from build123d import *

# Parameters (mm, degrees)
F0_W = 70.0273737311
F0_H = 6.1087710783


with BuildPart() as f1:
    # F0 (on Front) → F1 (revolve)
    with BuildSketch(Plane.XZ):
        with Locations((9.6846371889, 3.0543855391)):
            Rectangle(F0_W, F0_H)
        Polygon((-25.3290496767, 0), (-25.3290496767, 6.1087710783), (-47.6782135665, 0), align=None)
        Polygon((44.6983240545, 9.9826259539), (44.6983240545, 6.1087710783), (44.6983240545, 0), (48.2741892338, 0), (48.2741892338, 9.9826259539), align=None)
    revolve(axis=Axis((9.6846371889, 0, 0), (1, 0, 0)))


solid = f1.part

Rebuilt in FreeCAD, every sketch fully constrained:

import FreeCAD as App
import Part
import Sketcher
from FreeCAD import Vector
Q = App.Units.Quantity

doc = App.newDocument("Part")
body = doc.addObject("PartDesign::Body", "Body")

sketch1 = body.newObject("Sketcher::SketchObject", "Sketch")
sketch1.AttachmentSupport = (doc.getObject("XZ_Plane"), [""])
sketch1.MapMode = "FlatFace"
sketch1.addGeometry([
    Part.LineSegment(Vector(44.7, 6.1, 0), Vector(-25.3, 6.1, 0)),
    Part.LineSegment(Vector(-25.3, 6.1, 0), Vector(-47.7, 0, 0)),
    Part.LineSegment(Vector(-47.7, 0, 0), Vector(48.3, 0, 0)),
    Part.LineSegment(Vector(48.3, 0, 0), Vector(48.3, 10, 0)),
    Part.LineSegment(Vector(48.3, 10, 0), Vector(44.7, 10, 0)),
    Part.LineSegment(Vector(44.7, 10, 0), Vector(44.7, 6.1, 0)),
], False)
sketch1.addConstraint([
    Sketcher.Constraint("Coincident", 0, 2, 1, 1),
    Sketcher.Constraint("Coincident", 1, 2, 2, 1),
    Sketcher.Constraint("Coincident", 2, 2, 3, 1),
    Sketcher.Constraint("Coincident", 3, 2, 4, 1),
    Sketcher.Constraint("Coincident", 4, 2, 5, 1),
    Sketcher.Constraint("Coincident", 5, 2, 0, 1),
    Sketcher.Constraint("Horizontal", 0),
    Sketcher.Constraint("Horizontal", 2),
    Sketcher.Constraint("Vertical", 3),
    Sketcher.Constraint("Horizontal", 4),
    Sketcher.Constraint("Vertical", 5),
    Sketcher.Constraint("PointOnObject", 1, 2, -1),
    Sketcher.Constraint("DistanceX", 0, 2, 0, 1, Q("70.027374 mm")),
    Sketcher.Constraint("DistanceX", 2, 1, 2, 2, Q("95.952403 mm")),
    Sketcher.Constraint("DistanceX", 4, 2, 4, 1, Q("3.575865 mm")),
    Sketcher.Constraint("DistanceY", 3, 1, 3, 2, Q("9.982626 mm")),
    Sketcher.Constraint("DistanceY", 5, 2, 5, 1, Q("3.873855 mm")),
    Sketcher.Constraint("DistanceX", 0, 2, -1, 1, Q("25.32905 mm")),
])
revolution = body.newObject("PartDesign::Revolution", "Revolution")
revolution.Profile = sketch1
revolution.ReferenceAxis = (sketch1, ["H_Axis"])
revolution.Angle = 360

doc.recompute()
